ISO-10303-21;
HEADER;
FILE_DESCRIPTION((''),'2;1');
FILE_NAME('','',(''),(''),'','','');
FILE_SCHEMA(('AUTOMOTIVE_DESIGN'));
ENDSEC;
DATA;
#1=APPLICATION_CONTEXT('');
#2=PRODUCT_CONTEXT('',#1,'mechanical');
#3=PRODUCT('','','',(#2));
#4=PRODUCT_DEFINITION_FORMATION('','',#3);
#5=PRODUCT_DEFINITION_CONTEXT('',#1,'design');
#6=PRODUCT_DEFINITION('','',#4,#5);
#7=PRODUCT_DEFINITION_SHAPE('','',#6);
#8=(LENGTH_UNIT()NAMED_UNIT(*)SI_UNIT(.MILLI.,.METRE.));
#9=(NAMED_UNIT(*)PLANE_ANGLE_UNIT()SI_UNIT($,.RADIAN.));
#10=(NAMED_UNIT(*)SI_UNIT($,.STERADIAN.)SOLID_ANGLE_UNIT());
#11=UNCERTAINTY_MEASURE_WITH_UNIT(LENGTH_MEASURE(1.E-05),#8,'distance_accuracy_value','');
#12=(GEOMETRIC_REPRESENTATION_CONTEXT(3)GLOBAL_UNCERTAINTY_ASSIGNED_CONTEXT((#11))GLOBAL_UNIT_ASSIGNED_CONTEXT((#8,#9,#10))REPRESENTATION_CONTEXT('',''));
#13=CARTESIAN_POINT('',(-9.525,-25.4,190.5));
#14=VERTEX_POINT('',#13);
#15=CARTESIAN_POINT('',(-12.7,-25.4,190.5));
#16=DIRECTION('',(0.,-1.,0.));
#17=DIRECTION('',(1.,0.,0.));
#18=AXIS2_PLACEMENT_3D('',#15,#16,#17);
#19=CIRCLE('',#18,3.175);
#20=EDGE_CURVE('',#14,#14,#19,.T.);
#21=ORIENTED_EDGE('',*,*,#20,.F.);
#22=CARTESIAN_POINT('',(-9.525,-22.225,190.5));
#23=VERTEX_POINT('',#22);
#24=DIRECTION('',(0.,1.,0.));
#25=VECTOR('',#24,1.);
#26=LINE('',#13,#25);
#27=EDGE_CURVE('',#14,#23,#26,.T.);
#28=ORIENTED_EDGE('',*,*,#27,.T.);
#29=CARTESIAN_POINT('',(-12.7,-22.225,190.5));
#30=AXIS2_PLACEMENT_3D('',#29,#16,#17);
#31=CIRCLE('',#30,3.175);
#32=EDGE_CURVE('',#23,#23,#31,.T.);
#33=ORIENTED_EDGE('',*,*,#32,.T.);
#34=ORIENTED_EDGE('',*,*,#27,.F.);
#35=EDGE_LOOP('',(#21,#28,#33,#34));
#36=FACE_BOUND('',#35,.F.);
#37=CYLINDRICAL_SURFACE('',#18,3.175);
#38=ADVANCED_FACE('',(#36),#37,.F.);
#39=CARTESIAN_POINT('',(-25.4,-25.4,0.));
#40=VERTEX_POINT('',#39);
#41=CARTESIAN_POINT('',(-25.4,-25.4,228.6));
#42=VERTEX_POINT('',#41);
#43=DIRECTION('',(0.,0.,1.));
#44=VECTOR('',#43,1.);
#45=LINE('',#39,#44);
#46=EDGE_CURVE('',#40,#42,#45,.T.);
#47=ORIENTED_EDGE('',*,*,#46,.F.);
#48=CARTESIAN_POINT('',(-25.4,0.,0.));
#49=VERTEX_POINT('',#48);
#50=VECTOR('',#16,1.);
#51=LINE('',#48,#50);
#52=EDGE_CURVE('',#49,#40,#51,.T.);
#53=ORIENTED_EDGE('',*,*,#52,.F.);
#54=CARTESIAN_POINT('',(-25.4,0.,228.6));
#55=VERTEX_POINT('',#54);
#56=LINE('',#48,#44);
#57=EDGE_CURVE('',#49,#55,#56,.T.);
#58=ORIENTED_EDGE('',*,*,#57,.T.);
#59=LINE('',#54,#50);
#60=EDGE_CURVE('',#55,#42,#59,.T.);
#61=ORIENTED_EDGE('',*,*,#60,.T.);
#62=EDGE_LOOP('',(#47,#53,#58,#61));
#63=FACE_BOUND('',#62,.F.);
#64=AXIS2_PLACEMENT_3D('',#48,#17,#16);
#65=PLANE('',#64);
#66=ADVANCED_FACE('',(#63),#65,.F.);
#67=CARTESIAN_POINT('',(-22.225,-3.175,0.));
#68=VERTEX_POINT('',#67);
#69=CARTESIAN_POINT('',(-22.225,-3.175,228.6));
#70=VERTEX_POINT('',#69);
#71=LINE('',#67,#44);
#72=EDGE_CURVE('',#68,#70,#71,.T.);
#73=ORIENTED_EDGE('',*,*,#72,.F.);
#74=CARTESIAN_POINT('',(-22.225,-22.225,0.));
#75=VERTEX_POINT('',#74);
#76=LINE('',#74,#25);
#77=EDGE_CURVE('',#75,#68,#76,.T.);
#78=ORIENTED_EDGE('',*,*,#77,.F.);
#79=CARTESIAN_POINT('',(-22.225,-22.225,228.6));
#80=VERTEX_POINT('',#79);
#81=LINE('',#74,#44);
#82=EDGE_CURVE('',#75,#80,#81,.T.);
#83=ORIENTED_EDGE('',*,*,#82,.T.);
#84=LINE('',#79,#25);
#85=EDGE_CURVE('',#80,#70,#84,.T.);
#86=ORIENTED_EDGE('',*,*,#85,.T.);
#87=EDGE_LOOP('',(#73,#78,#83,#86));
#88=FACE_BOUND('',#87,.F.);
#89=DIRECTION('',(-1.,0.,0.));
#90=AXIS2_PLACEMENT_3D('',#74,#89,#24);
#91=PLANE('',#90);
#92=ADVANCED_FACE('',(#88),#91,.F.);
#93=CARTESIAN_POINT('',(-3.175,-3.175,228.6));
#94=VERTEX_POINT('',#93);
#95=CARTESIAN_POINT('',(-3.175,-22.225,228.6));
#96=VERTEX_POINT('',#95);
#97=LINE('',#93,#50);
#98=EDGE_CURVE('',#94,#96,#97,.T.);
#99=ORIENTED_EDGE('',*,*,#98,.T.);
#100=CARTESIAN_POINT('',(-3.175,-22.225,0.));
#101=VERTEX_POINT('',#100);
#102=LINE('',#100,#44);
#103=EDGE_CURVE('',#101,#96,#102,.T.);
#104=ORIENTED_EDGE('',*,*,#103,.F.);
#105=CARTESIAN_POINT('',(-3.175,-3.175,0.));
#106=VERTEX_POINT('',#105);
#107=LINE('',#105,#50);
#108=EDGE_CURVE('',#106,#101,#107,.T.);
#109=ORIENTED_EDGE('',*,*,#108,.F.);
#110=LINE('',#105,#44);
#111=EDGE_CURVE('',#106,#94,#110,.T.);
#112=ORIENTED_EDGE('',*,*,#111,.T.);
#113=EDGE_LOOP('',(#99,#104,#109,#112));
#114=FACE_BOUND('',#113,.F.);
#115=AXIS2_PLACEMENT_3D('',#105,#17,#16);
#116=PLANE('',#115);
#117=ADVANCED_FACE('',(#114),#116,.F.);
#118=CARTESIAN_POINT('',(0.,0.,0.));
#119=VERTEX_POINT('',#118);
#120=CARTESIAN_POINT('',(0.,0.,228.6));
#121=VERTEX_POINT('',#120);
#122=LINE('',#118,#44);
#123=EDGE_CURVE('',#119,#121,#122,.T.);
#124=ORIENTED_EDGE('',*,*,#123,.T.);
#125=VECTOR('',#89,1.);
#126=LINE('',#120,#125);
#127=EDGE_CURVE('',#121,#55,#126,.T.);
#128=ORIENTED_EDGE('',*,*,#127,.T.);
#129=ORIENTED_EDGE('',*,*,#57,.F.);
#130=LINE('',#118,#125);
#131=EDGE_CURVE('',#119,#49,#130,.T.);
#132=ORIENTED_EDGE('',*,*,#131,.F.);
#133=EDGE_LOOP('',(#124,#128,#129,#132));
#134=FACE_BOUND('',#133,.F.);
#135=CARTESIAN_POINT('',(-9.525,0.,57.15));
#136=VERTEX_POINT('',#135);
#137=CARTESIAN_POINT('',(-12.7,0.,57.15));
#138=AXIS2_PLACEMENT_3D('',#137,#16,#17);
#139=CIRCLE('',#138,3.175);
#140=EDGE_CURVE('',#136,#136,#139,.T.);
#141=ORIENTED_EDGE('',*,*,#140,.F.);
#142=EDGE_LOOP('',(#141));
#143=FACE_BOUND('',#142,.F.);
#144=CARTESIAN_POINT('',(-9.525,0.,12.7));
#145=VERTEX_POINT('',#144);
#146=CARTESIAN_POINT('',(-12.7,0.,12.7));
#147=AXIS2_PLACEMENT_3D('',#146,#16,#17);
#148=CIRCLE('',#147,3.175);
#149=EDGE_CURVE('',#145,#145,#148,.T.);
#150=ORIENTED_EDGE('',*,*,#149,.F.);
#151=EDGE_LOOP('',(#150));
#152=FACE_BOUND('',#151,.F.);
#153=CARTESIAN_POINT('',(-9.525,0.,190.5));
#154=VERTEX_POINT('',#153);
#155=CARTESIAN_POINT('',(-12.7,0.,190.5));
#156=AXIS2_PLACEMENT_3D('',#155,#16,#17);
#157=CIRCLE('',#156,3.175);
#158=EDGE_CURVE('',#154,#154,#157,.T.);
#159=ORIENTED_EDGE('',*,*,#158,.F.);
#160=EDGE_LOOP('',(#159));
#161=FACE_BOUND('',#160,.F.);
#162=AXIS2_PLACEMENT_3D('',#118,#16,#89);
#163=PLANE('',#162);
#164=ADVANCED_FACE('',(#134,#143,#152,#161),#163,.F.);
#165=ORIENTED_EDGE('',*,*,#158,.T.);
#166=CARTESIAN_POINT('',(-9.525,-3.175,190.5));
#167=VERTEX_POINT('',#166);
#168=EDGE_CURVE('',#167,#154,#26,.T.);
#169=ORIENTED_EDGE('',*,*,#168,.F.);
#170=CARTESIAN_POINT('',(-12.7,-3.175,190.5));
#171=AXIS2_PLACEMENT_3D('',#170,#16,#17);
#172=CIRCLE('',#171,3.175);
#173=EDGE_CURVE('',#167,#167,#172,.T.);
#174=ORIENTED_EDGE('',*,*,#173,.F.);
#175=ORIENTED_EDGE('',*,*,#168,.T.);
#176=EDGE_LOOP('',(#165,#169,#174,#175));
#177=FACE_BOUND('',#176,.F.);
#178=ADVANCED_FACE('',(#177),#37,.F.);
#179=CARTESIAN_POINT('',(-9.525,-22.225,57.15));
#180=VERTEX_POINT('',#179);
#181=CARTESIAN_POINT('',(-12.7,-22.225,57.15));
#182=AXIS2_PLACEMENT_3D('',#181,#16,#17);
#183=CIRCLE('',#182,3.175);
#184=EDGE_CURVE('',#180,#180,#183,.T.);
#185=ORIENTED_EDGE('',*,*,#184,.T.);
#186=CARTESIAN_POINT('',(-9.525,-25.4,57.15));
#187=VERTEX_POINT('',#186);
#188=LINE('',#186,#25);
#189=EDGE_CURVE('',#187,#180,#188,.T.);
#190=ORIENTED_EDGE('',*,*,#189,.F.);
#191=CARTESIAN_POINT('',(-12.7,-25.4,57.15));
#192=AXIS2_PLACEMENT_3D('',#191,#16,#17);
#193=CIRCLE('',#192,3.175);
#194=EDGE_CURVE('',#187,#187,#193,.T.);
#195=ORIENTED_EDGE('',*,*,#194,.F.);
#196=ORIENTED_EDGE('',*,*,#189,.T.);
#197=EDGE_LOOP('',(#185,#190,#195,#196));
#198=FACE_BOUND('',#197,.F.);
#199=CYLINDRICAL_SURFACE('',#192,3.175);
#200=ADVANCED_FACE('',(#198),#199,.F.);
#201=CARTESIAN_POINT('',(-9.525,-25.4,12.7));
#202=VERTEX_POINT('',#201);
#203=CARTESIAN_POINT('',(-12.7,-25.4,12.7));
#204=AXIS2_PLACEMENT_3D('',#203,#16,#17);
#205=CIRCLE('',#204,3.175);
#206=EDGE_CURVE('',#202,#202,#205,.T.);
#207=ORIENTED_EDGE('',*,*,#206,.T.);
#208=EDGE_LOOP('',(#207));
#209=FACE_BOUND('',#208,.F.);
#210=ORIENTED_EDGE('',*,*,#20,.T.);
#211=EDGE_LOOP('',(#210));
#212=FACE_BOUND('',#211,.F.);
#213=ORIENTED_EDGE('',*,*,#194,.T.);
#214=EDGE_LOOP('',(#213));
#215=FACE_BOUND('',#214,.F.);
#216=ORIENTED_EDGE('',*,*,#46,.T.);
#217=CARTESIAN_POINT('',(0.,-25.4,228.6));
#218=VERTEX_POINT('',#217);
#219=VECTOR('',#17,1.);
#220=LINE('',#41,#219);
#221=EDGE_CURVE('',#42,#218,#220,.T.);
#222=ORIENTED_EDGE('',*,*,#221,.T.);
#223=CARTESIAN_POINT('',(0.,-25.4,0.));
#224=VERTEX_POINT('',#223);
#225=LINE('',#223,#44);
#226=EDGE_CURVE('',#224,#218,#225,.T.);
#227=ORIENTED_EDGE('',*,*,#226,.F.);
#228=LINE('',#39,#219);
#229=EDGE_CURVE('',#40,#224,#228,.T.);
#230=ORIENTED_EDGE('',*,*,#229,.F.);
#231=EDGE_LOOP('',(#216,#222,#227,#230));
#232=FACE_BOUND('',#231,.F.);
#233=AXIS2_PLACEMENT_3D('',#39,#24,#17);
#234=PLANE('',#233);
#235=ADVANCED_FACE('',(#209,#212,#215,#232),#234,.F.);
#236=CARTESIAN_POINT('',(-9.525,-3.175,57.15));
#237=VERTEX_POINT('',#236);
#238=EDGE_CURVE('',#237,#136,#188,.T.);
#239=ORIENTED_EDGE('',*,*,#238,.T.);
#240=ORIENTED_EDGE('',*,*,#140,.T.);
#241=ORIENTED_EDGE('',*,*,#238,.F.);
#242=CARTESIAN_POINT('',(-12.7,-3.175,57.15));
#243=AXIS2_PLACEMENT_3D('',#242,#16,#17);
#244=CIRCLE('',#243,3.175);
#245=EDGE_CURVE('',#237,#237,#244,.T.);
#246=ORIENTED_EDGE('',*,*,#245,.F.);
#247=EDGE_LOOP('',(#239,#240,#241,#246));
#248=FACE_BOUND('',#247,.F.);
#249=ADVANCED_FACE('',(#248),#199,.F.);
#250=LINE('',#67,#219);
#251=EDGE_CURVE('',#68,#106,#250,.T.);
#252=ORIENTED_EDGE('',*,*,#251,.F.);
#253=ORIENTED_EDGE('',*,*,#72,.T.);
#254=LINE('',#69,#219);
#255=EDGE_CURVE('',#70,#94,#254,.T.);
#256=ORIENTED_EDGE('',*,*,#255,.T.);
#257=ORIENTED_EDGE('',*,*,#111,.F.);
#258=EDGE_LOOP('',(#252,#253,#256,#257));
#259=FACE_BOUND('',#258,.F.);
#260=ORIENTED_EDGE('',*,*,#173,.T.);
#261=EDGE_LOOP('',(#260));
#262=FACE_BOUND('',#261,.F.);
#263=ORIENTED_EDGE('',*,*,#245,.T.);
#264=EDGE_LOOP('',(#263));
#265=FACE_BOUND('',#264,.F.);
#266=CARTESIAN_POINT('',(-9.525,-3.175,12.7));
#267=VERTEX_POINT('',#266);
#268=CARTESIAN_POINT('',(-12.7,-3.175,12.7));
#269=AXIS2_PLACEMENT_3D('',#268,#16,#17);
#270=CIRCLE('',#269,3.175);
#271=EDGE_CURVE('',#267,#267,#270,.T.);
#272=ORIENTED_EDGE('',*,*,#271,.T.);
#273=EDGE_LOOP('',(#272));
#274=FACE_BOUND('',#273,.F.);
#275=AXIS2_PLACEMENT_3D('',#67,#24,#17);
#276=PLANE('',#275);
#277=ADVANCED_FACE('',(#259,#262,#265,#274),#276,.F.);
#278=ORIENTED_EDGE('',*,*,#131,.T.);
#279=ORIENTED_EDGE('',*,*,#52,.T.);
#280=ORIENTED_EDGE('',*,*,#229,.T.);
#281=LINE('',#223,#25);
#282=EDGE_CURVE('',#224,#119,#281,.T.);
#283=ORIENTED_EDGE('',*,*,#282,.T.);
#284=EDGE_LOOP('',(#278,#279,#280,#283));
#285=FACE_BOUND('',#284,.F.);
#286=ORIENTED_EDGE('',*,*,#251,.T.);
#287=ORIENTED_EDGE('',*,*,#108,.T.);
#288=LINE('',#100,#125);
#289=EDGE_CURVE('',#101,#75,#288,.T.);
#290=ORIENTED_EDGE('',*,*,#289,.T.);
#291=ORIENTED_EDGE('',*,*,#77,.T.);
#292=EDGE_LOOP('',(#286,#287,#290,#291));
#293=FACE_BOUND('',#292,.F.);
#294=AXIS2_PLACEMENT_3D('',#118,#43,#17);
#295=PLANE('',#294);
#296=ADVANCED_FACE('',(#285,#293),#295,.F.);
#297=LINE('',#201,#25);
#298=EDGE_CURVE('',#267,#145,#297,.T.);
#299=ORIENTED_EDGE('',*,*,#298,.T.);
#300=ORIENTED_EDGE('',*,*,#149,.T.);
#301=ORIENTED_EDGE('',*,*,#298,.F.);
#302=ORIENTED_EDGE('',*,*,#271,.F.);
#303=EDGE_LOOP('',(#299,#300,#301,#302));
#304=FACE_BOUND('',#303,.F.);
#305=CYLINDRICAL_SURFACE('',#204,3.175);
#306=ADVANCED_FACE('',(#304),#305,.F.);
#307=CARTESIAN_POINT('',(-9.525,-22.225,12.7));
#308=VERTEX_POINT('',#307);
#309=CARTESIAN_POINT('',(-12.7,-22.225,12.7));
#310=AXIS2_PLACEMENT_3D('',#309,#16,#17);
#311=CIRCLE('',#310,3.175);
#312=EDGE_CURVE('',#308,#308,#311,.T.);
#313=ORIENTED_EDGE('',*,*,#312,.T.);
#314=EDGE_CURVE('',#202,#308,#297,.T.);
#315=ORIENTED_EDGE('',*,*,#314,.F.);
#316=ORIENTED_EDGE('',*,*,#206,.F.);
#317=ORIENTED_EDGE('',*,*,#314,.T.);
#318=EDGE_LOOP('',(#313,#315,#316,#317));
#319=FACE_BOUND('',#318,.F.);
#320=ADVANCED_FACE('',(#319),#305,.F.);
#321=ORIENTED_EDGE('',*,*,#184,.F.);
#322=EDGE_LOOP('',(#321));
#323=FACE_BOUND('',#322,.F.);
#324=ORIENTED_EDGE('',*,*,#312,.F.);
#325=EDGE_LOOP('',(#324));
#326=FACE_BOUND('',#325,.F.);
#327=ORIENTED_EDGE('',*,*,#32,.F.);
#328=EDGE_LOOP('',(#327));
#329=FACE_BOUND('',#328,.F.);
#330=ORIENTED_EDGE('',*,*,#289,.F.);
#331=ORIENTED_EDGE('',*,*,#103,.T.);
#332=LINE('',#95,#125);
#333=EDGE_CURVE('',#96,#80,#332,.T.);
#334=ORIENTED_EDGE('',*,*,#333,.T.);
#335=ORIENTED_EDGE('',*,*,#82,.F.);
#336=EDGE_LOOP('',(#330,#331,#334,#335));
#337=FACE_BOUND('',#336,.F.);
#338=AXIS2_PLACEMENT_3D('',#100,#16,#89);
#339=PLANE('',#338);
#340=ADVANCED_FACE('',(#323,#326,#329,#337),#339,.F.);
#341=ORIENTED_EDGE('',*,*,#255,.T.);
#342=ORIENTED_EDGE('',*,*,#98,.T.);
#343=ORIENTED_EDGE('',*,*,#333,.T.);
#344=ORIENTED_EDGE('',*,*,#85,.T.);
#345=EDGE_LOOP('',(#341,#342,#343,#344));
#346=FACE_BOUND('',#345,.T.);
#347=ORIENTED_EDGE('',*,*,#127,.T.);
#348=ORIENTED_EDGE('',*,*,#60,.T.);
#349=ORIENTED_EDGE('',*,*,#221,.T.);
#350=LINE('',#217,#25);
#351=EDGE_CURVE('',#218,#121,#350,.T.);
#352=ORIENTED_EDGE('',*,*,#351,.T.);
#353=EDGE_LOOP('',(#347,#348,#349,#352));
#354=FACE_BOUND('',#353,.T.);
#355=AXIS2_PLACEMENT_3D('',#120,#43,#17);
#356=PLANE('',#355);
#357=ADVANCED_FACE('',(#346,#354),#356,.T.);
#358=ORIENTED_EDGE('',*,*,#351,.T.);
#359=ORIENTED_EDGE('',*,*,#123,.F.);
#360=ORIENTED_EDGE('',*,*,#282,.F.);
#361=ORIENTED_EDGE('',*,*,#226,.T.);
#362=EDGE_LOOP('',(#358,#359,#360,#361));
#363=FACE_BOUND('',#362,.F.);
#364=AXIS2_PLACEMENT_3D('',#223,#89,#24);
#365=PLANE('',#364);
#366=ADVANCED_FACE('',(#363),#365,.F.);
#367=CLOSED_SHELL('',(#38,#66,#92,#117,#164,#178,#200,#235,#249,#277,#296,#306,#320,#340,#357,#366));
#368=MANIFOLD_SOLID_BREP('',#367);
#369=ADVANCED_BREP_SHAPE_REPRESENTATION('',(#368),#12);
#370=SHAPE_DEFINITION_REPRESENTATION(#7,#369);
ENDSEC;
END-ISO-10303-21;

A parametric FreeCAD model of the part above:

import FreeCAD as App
import Part
import Sketcher
from FreeCAD import Vector
Q = App.Units.Quantity


def add_polygon(sketch, points):
    """Adds a closed chain of lines whose ends are joined by coincident constraints."""
    first, n = sketch.GeometryCount, len(points)
    for a, b in zip(points, points[1:] + points[:1]):
        sketch.addGeometry(Part.LineSegment(App.Vector(*a, 0), App.Vector(*b, 0)), False)
    for i in range(n):
        sketch.addConstraint(Sketcher.Constraint("Coincident", first + i, 2, first + (i + 1) % n, 1))

doc = App.newDocument("Part")
body = doc.addObject("PartDesign::Body", "Body")

# Sketch on XY plane
sketch1 = body.newObject("Sketcher::SketchObject", "Sketch")
sketch1.AttachmentSupport = (doc.getObject("XY_Plane"), [""])
sketch1.MapMode = "FlatFace"
add_polygon(sketch1, [(0, -25), (0, 0), (-25, 0), (-25, -25)])  # lines 0-3
add_polygon(sketch1, [(-3, -3), (-3, -22), (-22, -22), (-22, -3)])  # lines 4-7
sketch1.addConstraint(Sketcher.Constraint("Vertical", 0))
sketch1.addConstraint(Sketcher.Constraint("Horizontal", 1))
sketch1.addConstraint(Sketcher.Constraint("Vertical", 2))
sketch1.addConstraint(Sketcher.Constraint("Horizontal", 3))
sketch1.addConstraint(Sketcher.Constraint("Vertical", 4))
sketch1.addConstraint(Sketcher.Constraint("Horizontal", 5))
sketch1.addConstraint(Sketcher.Constraint("Vertical", 6))
sketch1.addConstraint(Sketcher.Constraint("Horizontal", 7))
sketch1.addConstraint(Sketcher.Constraint("Coincident", 0, 2, -1, 1))
sketch1.addConstraint(Sketcher.Constraint("Equal", 3, 0))
sketch1.addConstraint(Sketcher.Constraint("Equal", 7, 4))
sketch1.addConstraint(Sketcher.Constraint("DistanceX", 1, 2, 1, 1, Q("1 in")))
sketch1.addConstraint(Sketcher.Constraint("DistanceX", 4, 2, -1, 1, Q("0.125 in")))
sketch1.addConstraint(Sketcher.Constraint("DistanceY", 6, 2, -1, 1, Q("0.125 in")))
sketch1.addConstraint(Sketcher.Constraint("DistanceY", 3, 2, 4, 2, Q("0.125 in")))
pad1 = body.newObject("PartDesign::Pad", "Pad")
pad1.Profile = sketch1
pad1.Length = Q("9 in")

# Sketch on XZ plane
sketch2 = body.newObject("Sketcher::SketchObject", "Sketch001")
sketch2.AttachmentSupport = (doc.getObject("XZ_Plane"), [""])
sketch2.MapMode = "FlatFace"
sketch2.AttachmentOffset = App.Placement(Vector(0, 0, 1 * 25.4), App.Rotation())
sketch2.addGeometry(Part.Circle(Vector(-12.7, 190.5, 0), Vector(0, 0, 1), 3.2), False)
sketch2.addGeometry(Part.Circle(Vector(-12.7, 12.7, 0), Vector(0, 0, 1), 3.2), False)
sketch2.addGeometry(Part.Circle(Vector(-12.7, 57.1, 0), Vector(0, 0, 1), 3.2), False)
sketch2.addConstraint(Sketcher.Constraint("Equal", 0, 1))
sketch2.addConstraint(Sketcher.Constraint("Equal", 1, 2))
sketch2.addConstraint(Sketcher.Constraint("Vertical", 0, 3, 1, 3))
sketch2.addConstraint(Sketcher.Constraint("Vertical", 1, 3, 2, 3))
sketch2.addConstraint(Sketcher.Constraint("Diameter", 0, Q("0.25 in")))
sketch2.addConstraint(Sketcher.Constraint("DistanceX", 0, 3, -1, 1, Q("0.5 in")))
sketch2.addConstraint(Sketcher.Constraint("DistanceY", -1, 1, 1, 3, Q("0.5 in")))
sketch2.addConstraint(Sketcher.Constraint("DistanceY", 1, 3, 2, 3, Q("1.75 in")))
sketch2.addConstraint(Sketcher.Constraint("DistanceY", 1, 3, 0, 3, Q("7 in")))
pocket1 = body.newObject("PartDesign::Pocket", "Pocket")
pocket1.Profile = sketch2
pocket1.Length = Q("6 in")

doc.recompute()
